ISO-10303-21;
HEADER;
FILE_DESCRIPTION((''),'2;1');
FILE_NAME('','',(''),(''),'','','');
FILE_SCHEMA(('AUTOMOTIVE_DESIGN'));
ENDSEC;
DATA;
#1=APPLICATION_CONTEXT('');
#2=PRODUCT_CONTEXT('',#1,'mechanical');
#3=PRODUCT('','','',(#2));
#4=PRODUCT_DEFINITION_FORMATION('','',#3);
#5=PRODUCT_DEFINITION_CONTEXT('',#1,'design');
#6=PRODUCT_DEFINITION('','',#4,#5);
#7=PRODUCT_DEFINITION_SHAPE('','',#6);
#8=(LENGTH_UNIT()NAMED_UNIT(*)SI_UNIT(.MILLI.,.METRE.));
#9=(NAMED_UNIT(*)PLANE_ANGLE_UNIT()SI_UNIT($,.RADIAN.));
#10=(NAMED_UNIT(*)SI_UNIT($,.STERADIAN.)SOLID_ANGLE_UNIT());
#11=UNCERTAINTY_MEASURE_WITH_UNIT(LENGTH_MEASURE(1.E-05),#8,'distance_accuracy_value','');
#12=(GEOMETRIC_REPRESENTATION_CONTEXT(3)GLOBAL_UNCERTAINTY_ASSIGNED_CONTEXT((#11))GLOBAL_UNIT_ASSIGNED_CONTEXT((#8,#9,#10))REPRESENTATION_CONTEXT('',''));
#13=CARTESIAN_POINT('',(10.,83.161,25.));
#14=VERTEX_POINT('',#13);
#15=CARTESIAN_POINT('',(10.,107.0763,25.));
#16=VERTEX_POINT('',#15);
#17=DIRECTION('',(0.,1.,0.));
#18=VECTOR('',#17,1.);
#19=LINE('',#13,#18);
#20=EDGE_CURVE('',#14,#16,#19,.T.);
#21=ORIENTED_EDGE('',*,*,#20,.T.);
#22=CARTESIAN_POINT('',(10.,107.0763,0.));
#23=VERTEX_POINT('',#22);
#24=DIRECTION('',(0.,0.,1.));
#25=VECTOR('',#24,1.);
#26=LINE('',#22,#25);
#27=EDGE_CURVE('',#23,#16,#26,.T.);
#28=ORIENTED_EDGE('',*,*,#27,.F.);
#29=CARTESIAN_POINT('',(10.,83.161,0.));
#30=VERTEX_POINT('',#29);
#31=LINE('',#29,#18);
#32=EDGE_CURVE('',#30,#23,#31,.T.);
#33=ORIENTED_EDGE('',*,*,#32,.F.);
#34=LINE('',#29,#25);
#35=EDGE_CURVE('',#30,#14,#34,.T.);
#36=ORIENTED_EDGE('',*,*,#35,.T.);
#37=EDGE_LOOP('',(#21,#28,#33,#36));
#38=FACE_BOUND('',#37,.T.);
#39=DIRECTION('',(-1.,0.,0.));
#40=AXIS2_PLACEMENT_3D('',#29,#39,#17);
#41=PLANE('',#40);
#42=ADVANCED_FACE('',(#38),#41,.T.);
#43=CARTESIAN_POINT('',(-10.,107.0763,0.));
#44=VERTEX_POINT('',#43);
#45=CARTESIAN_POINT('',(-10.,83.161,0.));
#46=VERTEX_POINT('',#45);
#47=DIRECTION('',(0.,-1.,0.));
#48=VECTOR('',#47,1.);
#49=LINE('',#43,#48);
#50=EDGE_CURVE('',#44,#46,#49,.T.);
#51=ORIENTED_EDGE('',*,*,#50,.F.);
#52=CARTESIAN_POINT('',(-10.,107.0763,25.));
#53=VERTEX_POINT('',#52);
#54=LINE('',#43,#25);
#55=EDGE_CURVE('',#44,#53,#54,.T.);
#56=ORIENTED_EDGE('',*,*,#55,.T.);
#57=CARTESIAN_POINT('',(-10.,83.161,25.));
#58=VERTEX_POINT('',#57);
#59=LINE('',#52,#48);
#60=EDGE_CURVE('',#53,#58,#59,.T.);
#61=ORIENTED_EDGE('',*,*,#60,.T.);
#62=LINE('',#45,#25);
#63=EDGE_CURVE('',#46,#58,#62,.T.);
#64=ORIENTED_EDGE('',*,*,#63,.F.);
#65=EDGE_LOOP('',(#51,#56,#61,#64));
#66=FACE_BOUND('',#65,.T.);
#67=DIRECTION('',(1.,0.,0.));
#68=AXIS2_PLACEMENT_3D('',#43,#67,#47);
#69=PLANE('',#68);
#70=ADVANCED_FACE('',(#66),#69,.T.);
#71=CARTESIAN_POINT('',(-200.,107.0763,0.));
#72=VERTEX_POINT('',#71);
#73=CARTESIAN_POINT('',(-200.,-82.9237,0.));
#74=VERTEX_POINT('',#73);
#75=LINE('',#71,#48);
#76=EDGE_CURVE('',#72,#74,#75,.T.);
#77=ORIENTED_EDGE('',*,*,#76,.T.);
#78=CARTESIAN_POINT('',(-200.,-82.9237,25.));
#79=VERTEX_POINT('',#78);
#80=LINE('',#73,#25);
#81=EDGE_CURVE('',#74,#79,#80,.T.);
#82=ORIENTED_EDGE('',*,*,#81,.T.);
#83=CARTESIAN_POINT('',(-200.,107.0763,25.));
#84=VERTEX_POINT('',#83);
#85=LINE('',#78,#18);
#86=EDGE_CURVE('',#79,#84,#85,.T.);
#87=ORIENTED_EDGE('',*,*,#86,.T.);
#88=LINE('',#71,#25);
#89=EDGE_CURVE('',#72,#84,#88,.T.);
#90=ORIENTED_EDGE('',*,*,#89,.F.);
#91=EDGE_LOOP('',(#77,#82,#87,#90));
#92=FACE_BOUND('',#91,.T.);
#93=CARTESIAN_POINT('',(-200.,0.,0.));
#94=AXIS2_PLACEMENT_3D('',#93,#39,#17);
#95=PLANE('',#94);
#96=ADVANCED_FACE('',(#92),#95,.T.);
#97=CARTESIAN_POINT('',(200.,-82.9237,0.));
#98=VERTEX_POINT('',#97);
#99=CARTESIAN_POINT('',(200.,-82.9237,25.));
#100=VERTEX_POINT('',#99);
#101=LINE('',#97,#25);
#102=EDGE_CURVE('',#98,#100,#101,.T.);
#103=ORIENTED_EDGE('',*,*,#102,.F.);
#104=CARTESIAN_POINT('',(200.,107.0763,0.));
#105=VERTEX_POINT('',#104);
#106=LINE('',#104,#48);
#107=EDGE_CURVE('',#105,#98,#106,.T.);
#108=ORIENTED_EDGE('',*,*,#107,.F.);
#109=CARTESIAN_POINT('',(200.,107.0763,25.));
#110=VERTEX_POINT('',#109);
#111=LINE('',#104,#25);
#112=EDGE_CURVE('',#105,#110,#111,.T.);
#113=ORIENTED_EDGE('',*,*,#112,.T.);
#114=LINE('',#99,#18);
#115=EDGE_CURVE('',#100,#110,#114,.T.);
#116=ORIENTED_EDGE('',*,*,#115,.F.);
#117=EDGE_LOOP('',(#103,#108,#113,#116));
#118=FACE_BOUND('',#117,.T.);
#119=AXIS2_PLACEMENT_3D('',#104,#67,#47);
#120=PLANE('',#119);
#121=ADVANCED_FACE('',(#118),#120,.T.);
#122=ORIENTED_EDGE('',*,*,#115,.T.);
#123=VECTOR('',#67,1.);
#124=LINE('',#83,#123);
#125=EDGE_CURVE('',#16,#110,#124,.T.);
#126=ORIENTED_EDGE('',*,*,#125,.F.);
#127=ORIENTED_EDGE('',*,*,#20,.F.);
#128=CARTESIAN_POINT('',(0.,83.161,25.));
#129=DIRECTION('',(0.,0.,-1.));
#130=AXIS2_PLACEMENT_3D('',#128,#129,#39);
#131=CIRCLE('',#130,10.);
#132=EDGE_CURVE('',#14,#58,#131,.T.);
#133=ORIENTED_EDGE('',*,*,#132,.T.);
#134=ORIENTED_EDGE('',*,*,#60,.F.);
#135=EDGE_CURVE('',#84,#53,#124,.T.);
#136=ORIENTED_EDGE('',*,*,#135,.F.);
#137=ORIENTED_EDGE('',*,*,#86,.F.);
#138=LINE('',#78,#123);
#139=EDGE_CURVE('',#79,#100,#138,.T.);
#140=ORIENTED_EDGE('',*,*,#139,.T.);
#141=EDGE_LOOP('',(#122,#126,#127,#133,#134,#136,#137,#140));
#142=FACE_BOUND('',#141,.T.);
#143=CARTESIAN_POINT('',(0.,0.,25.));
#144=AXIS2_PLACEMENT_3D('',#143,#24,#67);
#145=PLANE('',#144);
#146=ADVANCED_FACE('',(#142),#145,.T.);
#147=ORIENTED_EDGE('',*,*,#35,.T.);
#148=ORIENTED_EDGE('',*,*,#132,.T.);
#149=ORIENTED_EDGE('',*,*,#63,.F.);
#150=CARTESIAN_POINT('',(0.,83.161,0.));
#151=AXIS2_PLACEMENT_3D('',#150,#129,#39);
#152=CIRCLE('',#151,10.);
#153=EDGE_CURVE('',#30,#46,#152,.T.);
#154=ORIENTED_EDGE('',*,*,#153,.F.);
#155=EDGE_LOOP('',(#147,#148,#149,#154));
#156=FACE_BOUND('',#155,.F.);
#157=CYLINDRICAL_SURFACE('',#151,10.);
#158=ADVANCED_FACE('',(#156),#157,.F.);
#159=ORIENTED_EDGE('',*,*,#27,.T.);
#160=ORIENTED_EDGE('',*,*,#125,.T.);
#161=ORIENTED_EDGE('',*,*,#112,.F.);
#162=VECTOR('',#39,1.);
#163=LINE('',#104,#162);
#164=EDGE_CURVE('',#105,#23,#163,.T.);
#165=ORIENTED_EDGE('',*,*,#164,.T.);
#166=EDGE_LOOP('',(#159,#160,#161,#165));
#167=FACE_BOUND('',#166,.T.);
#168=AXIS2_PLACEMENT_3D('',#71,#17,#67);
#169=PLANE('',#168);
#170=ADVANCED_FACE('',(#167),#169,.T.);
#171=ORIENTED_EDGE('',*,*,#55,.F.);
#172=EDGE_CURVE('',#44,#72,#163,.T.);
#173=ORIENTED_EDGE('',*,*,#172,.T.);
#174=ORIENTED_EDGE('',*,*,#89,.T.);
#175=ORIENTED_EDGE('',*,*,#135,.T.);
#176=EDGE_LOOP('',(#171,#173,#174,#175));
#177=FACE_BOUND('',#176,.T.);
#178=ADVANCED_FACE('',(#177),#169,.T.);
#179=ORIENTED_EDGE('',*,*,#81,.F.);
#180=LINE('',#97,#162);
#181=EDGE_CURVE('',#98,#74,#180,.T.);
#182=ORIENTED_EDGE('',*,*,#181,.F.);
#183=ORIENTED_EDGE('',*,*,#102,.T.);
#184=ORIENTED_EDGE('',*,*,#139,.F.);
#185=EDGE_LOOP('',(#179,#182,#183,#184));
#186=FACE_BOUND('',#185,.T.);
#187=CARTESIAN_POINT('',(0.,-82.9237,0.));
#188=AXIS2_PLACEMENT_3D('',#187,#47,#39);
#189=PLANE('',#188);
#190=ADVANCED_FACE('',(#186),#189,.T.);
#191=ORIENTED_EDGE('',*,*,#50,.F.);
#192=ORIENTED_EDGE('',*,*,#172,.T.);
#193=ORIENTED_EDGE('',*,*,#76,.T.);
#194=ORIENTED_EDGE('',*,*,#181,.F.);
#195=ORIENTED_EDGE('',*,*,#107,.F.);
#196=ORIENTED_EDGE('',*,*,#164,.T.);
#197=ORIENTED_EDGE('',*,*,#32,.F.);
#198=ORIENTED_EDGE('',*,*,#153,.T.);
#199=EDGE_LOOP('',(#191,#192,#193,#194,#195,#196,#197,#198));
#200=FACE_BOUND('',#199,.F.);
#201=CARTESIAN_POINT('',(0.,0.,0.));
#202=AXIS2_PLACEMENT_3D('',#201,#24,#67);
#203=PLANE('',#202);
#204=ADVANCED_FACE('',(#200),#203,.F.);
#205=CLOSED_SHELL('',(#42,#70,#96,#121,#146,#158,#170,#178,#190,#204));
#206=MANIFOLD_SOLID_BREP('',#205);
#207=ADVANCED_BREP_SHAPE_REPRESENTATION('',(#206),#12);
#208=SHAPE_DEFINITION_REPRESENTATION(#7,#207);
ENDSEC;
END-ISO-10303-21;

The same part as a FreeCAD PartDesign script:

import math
import FreeCAD as App
import Part
import Sketcher
from FreeCAD import Vector


def add_polygon(sketch, points):
    """Adds a closed chain of lines whose ends are joined by coincident constraints."""
    first, n = sketch.GeometryCount, len(points)
    for a, b in zip(points, points[1:] + points[:1]):
        sketch.addGeometry(Part.LineSegment(App.Vector(*a, 0), App.Vector(*b, 0)), False)
    for i in range(n):
        sketch.addConstraint(Sketcher.Constraint("Coincident", first + i, 2, first + (i + 1) % n, 1))

doc = App.newDocument("Part")
body = doc.addObject("PartDesign::Body", "Body")

# Sketch on XY plane
sketch1 = body.newObject("Sketcher::SketchObject", "Sketch")
sketch1.AttachmentSupport = (doc.getObject("XY_Plane"), [""])
sketch1.MapMode = "FlatFace"
add_polygon(sketch1, [(-200, 107), (-200, -83), (200, -83), (200, 107)])  # lines 0-3
sketch1.addConstraint(Sketcher.Constraint("Vertical", 0))
sketch1.addConstraint(Sketcher.Constraint("Horizontal", 1))
sketch1.addConstraint(Sketcher.Constraint("Vertical", 2))
sketch1.addConstraint(Sketcher.Constraint("Horizontal", 3))
sketch1.addConstraint(Sketcher.Constraint("DistanceX", 1, 1, 1, 2, 400.0))
sketch1.addConstraint(Sketcher.Constraint("DistanceY", 0, 2, 0, 1, 190.0))
sketch1.addConstraint(Sketcher.Constraint("DistanceX", 0, 2, -1, 1, 200.0))
sketch1.addConstraint(Sketcher.Constraint("DistanceY", 0, 2, -1, 1, 82.9237))
pad1 = body.newObject("PartDesign::Pad", "Pad")
pad1.Profile = sketch1
pad1.Length = 25

# Sketch on XY plane
sketch2 = body.newObject("Sketcher::SketchObject", "Sketch001")
sketch2.AttachmentSupport = (doc.getObject("XY_Plane"), [""])
sketch2.MapMode = "FlatFace"
sketch2.addGeometry(Part.LineSegment(Vector(-10, 107, 0), Vector(10, 107, 0)), False)
sketch2.addGeometry(Part.LineSegment(Vector(10, 107, 0), Vector(10, 83, 0)), False)
sketch2.addGeometry(Part.ArcOfCircle(Part.Circle(Vector(0, 83, 0), Vector(0, 0, 1), 10), math.radians(180), math.radians(360)), False)
sketch2.addGeometry(Part.LineSegment(Vector(-10, 83, 0), Vector(-10, 107, 0)), False)
sketch2.addConstraint(Sketcher.Constraint("Coincident", 0, 2, 1, 1))
sketch2.addConstraint(Sketcher.Constraint("Tangent", 1, 2, 2, 2))
sketch2.addConstraint(Sketcher.Constraint("Tangent", 2, 1, 3, 1))
sketch2.addConstraint(Sketcher.Constraint("Coincident", 3, 2, 0, 1))
sketch2.addConstraint(Sketcher.Constraint("Horizontal", 0))
sketch2.addConstraint(Sketcher.Constraint("Vertical", 1))
sketch2.addConstraint(Sketcher.Constraint("Vertical", 3))
sketch2.addConstraint(Sketcher.Constraint("PointOnObject", 2, 3, -2))
sketch2.addConstraint(Sketcher.Constraint("Radius", 2, 10.0))
sketch2.addConstraint(Sketcher.Constraint("DistanceY", 1, 2, 1, 1, 23.9153))
sketch2.addConstraint(Sketcher.Constraint("DistanceY", -1, 1, 2, 3, 83.161))
pocket1 = body.newObject("PartDesign::Pocket", "Pocket")
pocket1.Profile = sketch2
pocket1.Length = 25
pocket1.Reversed = True

doc.recompute()
